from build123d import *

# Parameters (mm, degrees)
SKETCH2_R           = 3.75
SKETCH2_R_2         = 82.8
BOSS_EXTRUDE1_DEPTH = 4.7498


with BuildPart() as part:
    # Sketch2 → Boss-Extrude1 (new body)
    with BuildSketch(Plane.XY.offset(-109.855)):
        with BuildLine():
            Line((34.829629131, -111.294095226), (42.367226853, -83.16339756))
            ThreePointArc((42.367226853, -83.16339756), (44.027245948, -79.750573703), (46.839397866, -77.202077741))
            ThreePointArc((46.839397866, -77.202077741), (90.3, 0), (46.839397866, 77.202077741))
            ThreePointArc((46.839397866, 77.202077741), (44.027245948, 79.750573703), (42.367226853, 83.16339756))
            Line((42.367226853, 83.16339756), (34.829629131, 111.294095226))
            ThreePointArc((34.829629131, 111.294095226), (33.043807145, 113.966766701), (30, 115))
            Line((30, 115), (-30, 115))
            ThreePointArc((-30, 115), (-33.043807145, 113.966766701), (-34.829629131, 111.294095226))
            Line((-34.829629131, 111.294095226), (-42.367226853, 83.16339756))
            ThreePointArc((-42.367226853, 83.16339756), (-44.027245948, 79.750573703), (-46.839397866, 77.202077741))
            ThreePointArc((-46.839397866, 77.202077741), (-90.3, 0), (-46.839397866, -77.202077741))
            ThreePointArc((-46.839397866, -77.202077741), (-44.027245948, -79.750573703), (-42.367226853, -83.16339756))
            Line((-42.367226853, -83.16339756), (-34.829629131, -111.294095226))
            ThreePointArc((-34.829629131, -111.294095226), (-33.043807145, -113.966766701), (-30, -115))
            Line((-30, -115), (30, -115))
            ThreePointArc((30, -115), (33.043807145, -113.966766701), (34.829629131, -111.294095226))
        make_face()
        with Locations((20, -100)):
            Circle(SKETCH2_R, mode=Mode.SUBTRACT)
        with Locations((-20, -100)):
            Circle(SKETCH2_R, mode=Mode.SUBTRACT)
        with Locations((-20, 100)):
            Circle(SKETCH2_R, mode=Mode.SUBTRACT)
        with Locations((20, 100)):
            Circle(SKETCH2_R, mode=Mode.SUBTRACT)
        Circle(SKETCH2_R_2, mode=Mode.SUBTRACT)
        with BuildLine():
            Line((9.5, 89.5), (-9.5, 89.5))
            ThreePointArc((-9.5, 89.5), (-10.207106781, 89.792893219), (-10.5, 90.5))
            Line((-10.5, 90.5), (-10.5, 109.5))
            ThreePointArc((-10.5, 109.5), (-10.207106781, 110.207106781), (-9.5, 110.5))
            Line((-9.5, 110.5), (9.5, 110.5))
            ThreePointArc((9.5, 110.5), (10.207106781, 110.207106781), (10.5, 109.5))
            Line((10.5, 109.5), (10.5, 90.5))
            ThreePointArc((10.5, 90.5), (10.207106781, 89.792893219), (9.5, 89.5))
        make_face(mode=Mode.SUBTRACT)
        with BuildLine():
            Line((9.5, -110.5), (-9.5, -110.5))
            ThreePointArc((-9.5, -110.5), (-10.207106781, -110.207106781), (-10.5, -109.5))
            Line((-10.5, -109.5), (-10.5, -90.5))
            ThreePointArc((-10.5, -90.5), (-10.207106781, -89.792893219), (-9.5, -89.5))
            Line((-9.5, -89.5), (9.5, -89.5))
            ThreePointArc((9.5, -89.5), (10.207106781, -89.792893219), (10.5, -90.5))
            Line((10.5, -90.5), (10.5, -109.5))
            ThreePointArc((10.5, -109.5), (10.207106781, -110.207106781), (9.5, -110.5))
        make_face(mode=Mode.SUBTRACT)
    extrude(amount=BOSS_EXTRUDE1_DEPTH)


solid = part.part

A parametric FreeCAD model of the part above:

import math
import FreeCAD as App
import Part
import Sketcher

V = App.Vector
Q = App.Units.Quantity

doc = App.newDocument("Part")
params = doc.addObject("Spreadsheet::Sheet", "Params")
for row, (alias, value) in enumerate([
    ("sketch1_radius", "10 mm"),
    ("sketch1_radius2", "5 mm"),
    ("sketch1_radius3", "1 mm"),
    ("sketch1_diameter", "7.5 mm"),
    ("sketch1_diameter2", "165.6 mm"),
    ("pad1_length", "4.7498 mm"),
], start=1):
    params.set(f"A{row}", alias)
    params.set(f"B{row}", "=" + value)
    params.setAlias(f"B{row}", alias)

body = doc.addObject("PartDesign::Body", "Body")

# Sketch on XY plane
sketch1 = body.newObject("Sketcher::SketchObject", "Sketch")
sketch1.AttachmentSupport = (doc.getObject("XY_Plane"), [""])
sketch1.MapMode = "FlatFace"
sketch1.AttachmentOffset = App.Placement(V(0, 0, -109.855), App.Rotation())
sketch1.addGeometry([
    Part.LineSegment(V(34.8, -111.3, 0), V(42.4, -83.2, 0)),  # 0
    Part.ArcOfCircle(Part.Circle(V(52, -85.8, 0), V(0, 0, 1), 10), math.radians(121), math.radians(165)),  # 1
    Part.ArcOfCircle(Part.Circle(V(0, 0, 0), V(0, 0, 1), 90.3), math.radians(-59), math.radians(59)),  # 2
    Part.ArcOfCircle(Part.Circle(V(52, 85.8, 0), V(0, 0, 1), 10), math.radians(-165), math.radians(-121)),  # 3
    Part.LineSegment(V(42.4, 83.2, 0), V(34.8, 111.3, 0)),  # 4
    Part.ArcOfCircle(Part.Circle(V(30, 110, 0), V(0, 0, 1), 5), math.radians(15), math.radians(90)),  # 5
    Part.LineSegment(V(30, 115, 0), V(-30, 115, 0)),  # 6
    Part.ArcOfCircle(Part.Circle(V(-30, 110, 0), V(0, 0, 1), 5), math.radians(90), math.radians(165)),  # 7
    Part.LineSegment(V(-34.8, 111.3, 0), V(-42.4, 83.2, 0)),  # 8
    Part.ArcOfCircle(Part.Circle(V(-52, 85.8, 0), V(0, 0, 1), 10), math.radians(-59), math.radians(-15)),  # 9
    Part.ArcOfCircle(Part.Circle(V(0, 0, 0), V(0, 0, 1), 90.3), math.radians(121), math.radians(239)),  # 10
    Part.ArcOfCircle(Part.Circle(V(-52, -85.8, 0), V(0, 0, 1), 10), math.radians(15), math.radians(59)),  # 11
    Part.LineSegment(V(-42.4, -83.2, 0), V(-34.8, -111.3, 0)),  # 12
    Part.ArcOfCircle(Part.Circle(V(-30, -110, 0), V(0, 0, 1), 5), math.radians(-165), math.radians(-90)),  # 13
    Part.LineSegment(V(-30, -115, 0), V(30, -115, 0)),  # 14
    Part.ArcOfCircle(Part.Circle(V(30, -110, 0), V(0, 0, 1), 5), math.radians(-90), math.radians(-15)),  # 15
    Part.Circle(V(-20, -100, 0), V(0, 0, 1), 3.8),  # 16
    Part.ArcOfCircle(Part.Circle(V(9.5, -109.5, 0), V(0, 0, 1), 1), math.radians(-90), math.radians(0)),  # 17
    Part.LineSegment(V(9.5, -110.5, 0), V(-9.5, -110.5, 0)),  # 18
    Part.ArcOfCircle(Part.Circle(V(-9.5, -109.5, 0), V(0, 0, 1), 1), math.radians(-180), math.radians(-90)),  # 19
    Part.LineSegment(V(-10.5, -109.5, 0), V(-10.5, -90.5, 0)),  # 20
    Part.ArcOfCircle(Part.Circle(V(-9.5, -90.5, 0), V(0, 0, 1), 1), math.radians(90), math.radians(180)),  # 21
    Part.LineSegment(V(-9.5, -89.5, 0), V(9.5, -89.5, 0)),  # 22
    Part.ArcOfCircle(Part.Circle(V(9.5, -90.5, 0), V(0, 0, 1), 1), math.radians(0), math.radians(90)),  # 23
    Part.LineSegment(V(10.5, -90.5, 0), V(10.5, -109.5, 0)),  # 24
    Part.Circle(V(20, -100, 0), V(0, 0, 1), 3.8),  # 25
    Part.Circle(V(-20, 100, 0), V(0, 0, 1), 3.8),  # 26
    Part.Circle(V(0, 0, 0), V(0, 0, 1), 82.8),  # 27
    Part.ArcOfCircle(Part.Circle(V(9.5, 90.5, 0), V(0, 0, 1), 1), math.radians(-90), math.radians(0)),  # 28
    Part.LineSegment(V(9.5, 89.5, 0), V(-9.5, 89.5, 0)),  # 29
    Part.ArcOfCircle(Part.Circle(V(-9.5, 90.5, 0), V(0, 0, 1), 1), math.radians(-180), math.radians(-90)),  # 30
    Part.LineSegment(V(-10.5, 90.5, 0), V(-10.5, 109.5, 0)),  # 31
    Part.ArcOfCircle(Part.Circle(V(-9.5, 109.5, 0), V(0, 0, 1), 1), math.radians(90), math.radians(180)),  # 32
    Part.LineSegment(V(-9.5, 110.5, 0), V(9.5, 110.5, 0)),  # 33
    Part.ArcOfCircle(Part.Circle(V(9.5, 109.5, 0), V(0, 0, 1), 1), math.radians(0), math.radians(90)),  # 34
    Part.LineSegment(V(10.5, 109.5, 0), V(10.5, 90.5, 0)),  # 35
    Part.Circle(V(20, 100, 0), V(0, 0, 1), 3.8),  # 36
], False)
sketch1.addConstraint([
    Sketcher.Constraint("Tangent", 0, 2, 1, 2),
    Sketcher.Constraint("Tangent", 1, 1, 2, 1),
    Sketcher.Constraint("Tangent", 2, 2, 3, 2),
    Sketcher.Constraint("Tangent", 3, 1, 4, 1),
    Sketcher.Constraint("Tangent", 4, 2, 5, 1),
    Sketcher.Constraint("Tangent", 5, 2, 6, 1),
    Sketcher.Constraint("Tangent", 6, 2, 7, 1),
    Sketcher.Constraint("Tangent", 7, 2, 8, 1),
    Sketcher.Constraint("Tangent", 8, 2, 9, 2),
    Sketcher.Constraint("Tangent", 9, 1, 10, 1),
    Sketcher.Constraint("Tangent", 10, 2, 11, 2),
    Sketcher.Constraint("Tangent", 11, 1, 12, 1),
    Sketcher.Constraint("Tangent", 12, 2, 13, 1),
    Sketcher.Constraint("Tangent", 13, 2, 14, 1),
    Sketcher.Constraint("Tangent", 14, 2, 15, 1),
    Sketcher.Constraint("Tangent", 15, 2, 0, 1),
    Sketcher.Constraint("Tangent", 17, 1, 18, 1),
    Sketcher.Constraint("Tangent", 18, 2, 19, 2),
    Sketcher.Constraint("Tangent", 19, 1, 20, 1),
    Sketcher.Constraint("Tangent", 20, 2, 21, 2),
    Sketcher.Constraint("Tangent", 21, 1, 22, 1),
    Sketcher.Constraint("Tangent", 22, 2, 23, 2),
    Sketcher.Constraint("Tangent", 23, 1, 24, 1),
    Sketcher.Constraint("Tangent", 24, 2, 17, 2),
    Sketcher.Constraint("Tangent", 28, 1, 29, 1),
    Sketcher.Constraint("Tangent", 29, 2, 30, 2),
    Sketcher.Constraint("Tangent", 30, 1, 31, 1),
    Sketcher.Constraint("Tangent", 31, 2, 32, 2),
    Sketcher.Constraint("Tangent", 32, 1, 33, 1),
    Sketcher.Constraint("Tangent", 33, 2, 34, 2),
    Sketcher.Constraint("Tangent", 34, 1, 35, 1),
    Sketcher.Constraint("Tangent", 35, 2, 28, 2),
    Sketcher.Constraint("Horizontal", 6),
    Sketcher.Constraint("Horizontal", 14),
    Sketcher.Constraint("Horizontal", 18),
    Sketcher.Constraint("Vertical", 20),
    Sketcher.Constraint("Horizontal", 22),
    Sketcher.Constraint("Vertical", 24),
    Sketcher.Constraint("Horizontal", 29),
    Sketcher.Constraint("Vertical", 31),
    Sketcher.Constraint("Horizontal", 33),
    Sketcher.Constraint("Vertical", 35),
    Sketcher.Constraint("Coincident", 2, 3, -1, 1),
    Sketcher.Constraint("Coincident", 10, 3, -1, 1),
    Sketcher.Constraint("Coincident", 27, 3, -1, 1),
    Sketcher.Constraint("Equal", 1, 3),
    Sketcher.Constraint("Equal", 5, 7),
    Sketcher.Constraint("Equal", 3, 9),
    Sketcher.Constraint("Equal", 2, 10),
    Sketcher.Constraint("Equal", 9, 11),
    Sketcher.Constraint("Equal", 7, 13),
    Sketcher.Constraint("Equal", 13, 15),
    Sketcher.Constraint("Equal", 17, 19),
    Sketcher.Constraint("Equal", 19, 21),
    Sketcher.Constraint("Equal", 21, 23),
    Sketcher.Constraint("Equal", 16, 25),
    Sketcher.Constraint("Equal", 25, 26),
    Sketcher.Constraint("Equal", 23, 28),
    Sketcher.Constraint("Equal", 28, 30),
    Sketcher.Constraint("Equal", 30, 32),
    Sketcher.Constraint("Equal", 32, 34),
    Sketcher.Constraint("Equal", 26, 36),
    Sketcher.Constraint("Symmetric", 5, 3, 13, 3, -1, 1),
    Sketcher.Constraint("Symmetric", 25, 3, 26, 3, -1, 1),
    Sketcher.Constraint("Symmetric", 21, 3, 28, 3, -1, 1),
    Sketcher.Constraint("Symmetric", 17, 3, 32, 3, -1, 1),
    Sketcher.Constraint("Symmetric", 16, 3, 36, 3, -1, 1),
    Sketcher.Constraint("Symmetric", 0, 2, 8, 2, -1, 1),
    Sketcher.Constraint("Symmetric", 16, 3, 25, 3, -2),
    Sketcher.Constraint("Symmetric", 4, 2, 7, 2, -2),
    Sketcher.Constraint("Parallel", 4, 12),
    Sketcher.Constraint("Vertical", 23, 3, 28, 3),
    Sketcher.Constraint("Equal", 33, 20),
    Sketcher.Constraint("Radius", 1, 10.0),
    Sketcher.Constraint("Radius", 5, 5.0),
    Sketcher.Constraint("Radius", 17, 1.0),
    Sketcher.Constraint("Diameter", 16, 7.5),
    Sketcher.Constraint("Diameter", 27, 165.6),
    Sketcher.Constraint("Radius", 2, 90.3),
    Sketcher.Constraint("DistanceX", 6, 2, 6, 1, 60.0),
    Sketcher.Constraint("DistanceX", 18, 2, 18, 1, 19.0),
    Sketcher.Constraint("Angle", 0, Q("75 deg")),
    Sketcher.Constraint("DistanceY", -1, 1, 5, 3, 110.0),
    Sketcher.Constraint("DistanceX", 16, 3, -1, 1, 20.0),
    Sketcher.Constraint("DistanceY", 16, 3, -1, 1, 100.0),
    Sketcher.Constraint("DistanceY", 17, 3, -1, 1, 109.5),
])
sketch1.setExpression("Constraints[73]", "Params.sketch1_radius")
sketch1.setExpression("Constraints[74]", "Params.sketch1_radius2")
sketch1.setExpression("Constraints[75]", "Params.sketch1_radius3")
sketch1.setExpression("Constraints[76]", "Params.sketch1_diameter")
sketch1.setExpression("Constraints[77]", "Params.sketch1_diameter2")
pad1 = body.newObject("PartDesign::Pad", "Pad")
pad1.Profile = sketch1
pad1.setExpression("Length", "Params.pad1_length")

doc.recompute()
